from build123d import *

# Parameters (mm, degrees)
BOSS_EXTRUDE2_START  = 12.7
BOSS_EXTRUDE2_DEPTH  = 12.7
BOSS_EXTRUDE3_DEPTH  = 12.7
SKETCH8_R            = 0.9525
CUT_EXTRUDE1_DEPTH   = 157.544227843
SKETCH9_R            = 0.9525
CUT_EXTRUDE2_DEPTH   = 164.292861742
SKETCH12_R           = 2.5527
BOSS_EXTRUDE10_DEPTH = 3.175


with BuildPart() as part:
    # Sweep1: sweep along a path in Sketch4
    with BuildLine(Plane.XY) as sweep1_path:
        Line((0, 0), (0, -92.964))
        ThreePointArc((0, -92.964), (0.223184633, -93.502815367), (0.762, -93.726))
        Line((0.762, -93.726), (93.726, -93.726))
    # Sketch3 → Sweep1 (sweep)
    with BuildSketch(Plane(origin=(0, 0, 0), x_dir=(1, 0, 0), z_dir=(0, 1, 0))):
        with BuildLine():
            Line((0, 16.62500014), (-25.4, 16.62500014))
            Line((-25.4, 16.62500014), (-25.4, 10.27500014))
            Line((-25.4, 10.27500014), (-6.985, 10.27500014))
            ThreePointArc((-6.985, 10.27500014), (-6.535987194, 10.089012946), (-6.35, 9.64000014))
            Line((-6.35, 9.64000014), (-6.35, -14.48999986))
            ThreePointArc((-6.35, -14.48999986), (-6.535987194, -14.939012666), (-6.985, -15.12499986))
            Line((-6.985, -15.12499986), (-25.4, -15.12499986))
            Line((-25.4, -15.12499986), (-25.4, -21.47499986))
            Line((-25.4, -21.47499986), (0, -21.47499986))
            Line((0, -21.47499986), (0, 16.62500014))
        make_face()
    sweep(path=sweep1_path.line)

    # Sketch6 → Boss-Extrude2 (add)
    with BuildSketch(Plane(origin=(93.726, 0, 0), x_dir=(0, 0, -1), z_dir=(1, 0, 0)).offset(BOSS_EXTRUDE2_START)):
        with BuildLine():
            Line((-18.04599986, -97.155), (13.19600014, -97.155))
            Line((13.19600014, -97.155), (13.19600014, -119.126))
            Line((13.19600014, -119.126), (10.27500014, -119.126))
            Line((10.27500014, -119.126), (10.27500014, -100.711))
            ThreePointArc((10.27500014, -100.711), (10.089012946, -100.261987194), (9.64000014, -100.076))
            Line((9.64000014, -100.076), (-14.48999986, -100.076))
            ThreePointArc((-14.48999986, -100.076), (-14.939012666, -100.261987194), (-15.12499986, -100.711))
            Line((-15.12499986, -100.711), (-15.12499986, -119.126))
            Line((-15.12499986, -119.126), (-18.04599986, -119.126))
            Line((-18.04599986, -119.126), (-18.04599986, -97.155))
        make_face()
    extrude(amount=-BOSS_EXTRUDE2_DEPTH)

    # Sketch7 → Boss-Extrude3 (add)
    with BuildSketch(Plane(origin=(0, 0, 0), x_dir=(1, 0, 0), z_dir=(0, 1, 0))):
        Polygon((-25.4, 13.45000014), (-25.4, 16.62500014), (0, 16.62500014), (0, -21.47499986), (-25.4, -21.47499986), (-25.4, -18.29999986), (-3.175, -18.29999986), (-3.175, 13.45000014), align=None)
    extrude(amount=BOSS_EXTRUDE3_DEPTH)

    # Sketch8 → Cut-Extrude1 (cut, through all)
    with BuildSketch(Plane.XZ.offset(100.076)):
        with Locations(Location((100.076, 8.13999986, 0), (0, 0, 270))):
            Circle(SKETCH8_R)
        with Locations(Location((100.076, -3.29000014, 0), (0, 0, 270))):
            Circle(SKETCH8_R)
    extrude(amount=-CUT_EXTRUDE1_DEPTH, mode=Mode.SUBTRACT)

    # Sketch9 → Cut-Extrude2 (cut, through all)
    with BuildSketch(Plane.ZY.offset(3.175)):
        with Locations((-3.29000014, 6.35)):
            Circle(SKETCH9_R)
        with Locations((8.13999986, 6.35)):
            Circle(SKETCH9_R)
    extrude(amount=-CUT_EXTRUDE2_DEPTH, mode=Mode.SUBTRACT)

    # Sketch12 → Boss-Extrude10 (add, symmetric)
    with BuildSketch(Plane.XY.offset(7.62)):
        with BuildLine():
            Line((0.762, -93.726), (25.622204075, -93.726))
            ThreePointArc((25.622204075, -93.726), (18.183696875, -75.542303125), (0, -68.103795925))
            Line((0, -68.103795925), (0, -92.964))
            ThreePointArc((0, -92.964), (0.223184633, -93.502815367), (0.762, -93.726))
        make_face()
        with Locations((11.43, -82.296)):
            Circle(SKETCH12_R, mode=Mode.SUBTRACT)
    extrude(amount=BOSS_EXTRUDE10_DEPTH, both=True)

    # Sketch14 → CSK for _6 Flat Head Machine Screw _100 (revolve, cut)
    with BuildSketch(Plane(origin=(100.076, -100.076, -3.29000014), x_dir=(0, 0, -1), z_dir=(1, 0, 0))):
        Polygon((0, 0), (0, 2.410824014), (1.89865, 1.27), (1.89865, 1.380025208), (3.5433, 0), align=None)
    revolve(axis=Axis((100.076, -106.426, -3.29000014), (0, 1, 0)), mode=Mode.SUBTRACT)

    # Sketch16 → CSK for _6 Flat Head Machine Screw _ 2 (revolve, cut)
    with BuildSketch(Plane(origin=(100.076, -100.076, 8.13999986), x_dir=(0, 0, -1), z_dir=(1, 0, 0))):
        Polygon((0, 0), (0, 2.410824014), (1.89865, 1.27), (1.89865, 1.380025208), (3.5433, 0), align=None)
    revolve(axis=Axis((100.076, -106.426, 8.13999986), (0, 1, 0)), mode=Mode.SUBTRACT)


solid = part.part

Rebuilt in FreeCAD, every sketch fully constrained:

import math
import FreeCAD as App
import Part
import Sketcher
from FreeCAD import Vector
Q = App.Units.Quantity


def add_polygon(sketch, points):
    """Adds a closed chain of lines whose ends are joined by coincident constraints."""
    first, n = sketch.GeometryCount, len(points)
    for a, b in zip(points, points[1:] + points[:1]):
        sketch.addGeometry(Part.LineSegment(App.Vector(*a, 0), App.Vector(*b, 0)), False)
    for i in range(n):
        sketch.addConstraint(Sketcher.Constraint("Coincident", first + i, 2, first + (i + 1) % n, 1))

doc = App.newDocument("Part")
body = doc.addObject("PartDesign::Body", "Body")

# Sketch on XZ plane
sketch1 = body.newObject("Sketcher::SketchObject", "Sketch")
sketch1.AttachmentSupport = (doc.getObject("XZ_Plane"), [""])
sketch1.MapMode = "FlatFace"
sketch1.addGeometry([
    Part.LineSegment(Vector(0, -16.6, 0), Vector(-25.4, -16.6, 0)),  # 0
    Part.LineSegment(Vector(-25.4, -16.6, 0), Vector(-25.4, -10.3, 0)),  # 1
    Part.LineSegment(Vector(-25.4, -10.3, 0), Vector(-7, -10.3, 0)),  # 2
    Part.ArcOfCircle(Part.Circle(Vector(-7, -9.6, 0), Vector(0, 0, 1), 0.6), math.radians(-90), math.radians(0)),  # 3
    Part.LineSegment(Vector(-6.3, -9.6, 0), Vector(-6.3, 14.5, 0)),  # 4
    Part.ArcOfCircle(Part.Circle(Vector(-7, 14.5, 0), Vector(0, 0, 1), 0.6), math.radians(0), math.radians(90)),  # 5
    Part.LineSegment(Vector(-7, 15.1, 0), Vector(-25.4, 15.1, 0)),  # 6
    Part.LineSegment(Vector(-25.4, 15.1, 0), Vector(-25.4, 21.5, 0)),  # 7
    Part.LineSegment(Vector(-25.4, 21.5, 0), Vector(0, 21.5, 0)),  # 8
    Part.LineSegment(Vector(0, 21.5, 0), Vector(0, -16.6, 0)),  # 9
], False)
sketch1.addConstraint([
    Sketcher.Constraint("Coincident", 0, 2, 1, 1),
    Sketcher.Constraint("Coincident", 1, 2, 2, 1),
    Sketcher.Constraint("Tangent", 2, 2, 3, 1),
    Sketcher.Constraint("Tangent", 3, 2, 4, 1),
    Sketcher.Constraint("Tangent", 4, 2, 5, 1),
    Sketcher.Constraint("Tangent", 5, 2, 6, 1),
    Sketcher.Constraint("Coincident", 6, 2, 7, 1),
    Sketcher.Constraint("Coincident", 7, 2, 8, 1),
    Sketcher.Constraint("Coincident", 8, 2, 9, 1),
    Sketcher.Constraint("Coincident", 9, 2, 0, 1),
    Sketcher.Constraint("Horizontal", 0),
    Sketcher.Constraint("Vertical", 1),
    Sketcher.Constraint("Horizontal", 2),
    Sketcher.Constraint("Vertical", 4),
    Sketcher.Constraint("Horizontal", 6),
    Sketcher.Constraint("Vertical", 7),
    Sketcher.Constraint("Horizontal", 8),
    Sketcher.Constraint("Vertical", 9),
    Sketcher.Constraint("Equal", 3, 5),
    Sketcher.Constraint("PointOnObject", 8, 2, -2),
    Sketcher.Constraint("Vertical", 1, 2, 6, 2),
    Sketcher.Constraint("Equal", 1, 7),
    Sketcher.Constraint("DistanceX", 0, 2, 0, 1, Q("1 in")),
    Sketcher.Constraint("DistanceY", 9, 2, 9, 1, Q("1.5 in")),
    Sketcher.Constraint("Radius", 3, Q("0.025 in")),
    Sketcher.Constraint("DistanceY", 2, 2, 5, 2, Q("1 in")),
    Sketcher.Constraint("DistanceX", 2, 1, 2, 2, Q("0.725 in")),
    Sketcher.Constraint("DistanceY", 3, 3, -1, 1, 9.64),
])

# Sketch on XY plane
sketch2 = body.newObject("Sketcher::SketchObject", "Sketch001")
sketch2.AttachmentSupport = (doc.getObject("XY_Plane"), [""])
sketch2.MapMode = "FlatFace"
sketch2.addGeometry([
    Part.LineSegment(Vector(0, 0, 0), Vector(0, -93, 0)),
    Part.ArcOfCircle(Part.Circle(Vector(0.8, -93, 0), Vector(0, 0, 1), 0.8), math.radians(-180), math.radians(-90)),
    Part.LineSegment(Vector(0.8, -93.7, 0), Vector(93.7, -93.7, 0)),
], False)
sketch2.addConstraint([
    Sketcher.Constraint("Tangent", 0, 2, 1, 1),
    Sketcher.Constraint("Tangent", 1, 2, 2, 1),
    Sketcher.Constraint("Vertical", 0),
    Sketcher.Constraint("Horizontal", 2),
    Sketcher.Constraint("Coincident", 0, 1, -1, 1),
    Sketcher.Constraint("Equal", 2, 0),
    Sketcher.Constraint("Radius", 1, Q("0.03 in")),
    Sketcher.Constraint("DistanceX", 2, 1, 2, 2, Q("3.66 in")),
])
doc.recompute()

additivepipe = body.newObject("PartDesign::AdditivePipe", "AdditivePipe")
additivepipe.Profile = sketch1
additivepipe.Spine = (sketch2, ["Edge1", "Edge2", "Edge3"])

# Sketch on YZ plane
sketch3 = body.newObject("Sketcher::SketchObject", "Sketch002")
sketch3.AttachmentSupport = (doc.getObject("YZ_Plane"), [""])
sketch3.MapMode = "FlatFace"
sketch3.AttachmentOffset = App.Placement(Vector(0, 0, 4.19 * 25.4), App.Rotation())
sketch3.addGeometry([
    Part.LineSegment(Vector(-97.2, -13.2, 0), Vector(-97.2, 18, 0)),  # 0
    Part.LineSegment(Vector(-97.2, 18, 0), Vector(-119.1, 18, 0)),  # 1
    Part.LineSegment(Vector(-119.1, 18, 0), Vector(-119.1, 15.1, 0)),  # 2
    Part.LineSegment(Vector(-119.1, 15.1, 0), Vector(-100.7, 15.1, 0)),  # 3
    Part.ArcOfCircle(Part.Circle(Vector(-100.7, 14.5, 0), Vector(0, 0, 1), 0.6), math.radians(0), math.radians(90)),  # 4
    Part.LineSegment(Vector(-100.1, 14.5, 0), Vector(-100.1, -9.6, 0)),  # 5
    Part.ArcOfCircle(Part.Circle(Vector(-100.7, -9.6, 0), Vector(0, 0, 1), 0.6), math.radians(-90), math.radians(0)),  # 6
    Part.LineSegment(Vector(-100.7, -10.3, 0), Vector(-119.1, -10.3, 0)),  # 7
    Part.LineSegment(Vector(-119.1, -10.3, 0), Vector(-119.1, -13.2, 0)),  # 8
    Part.LineSegment(Vector(-119.1, -13.2, 0), Vector(-97.2, -13.2, 0)),  # 9
], False)
sketch3.addConstraint([
    Sketcher.Constraint("Coincident", 0, 2, 1, 1),
    Sketcher.Constraint("Coincident", 1, 2, 2, 1),
    Sketcher.Constraint("Coincident", 2, 2, 3, 1),
    Sketcher.Constraint("Tangent", 3, 2, 4, 2),
    Sketcher.Constraint("Tangent", 4, 1, 5, 1),
    Sketcher.Constraint("Tangent", 5, 2, 6, 2),
    Sketcher.Constraint("Tangent", 6, 1, 7, 1),
    Sketcher.Constraint("Coincident", 7, 2, 8, 1),
    Sketcher.Constraint("Coincident", 8, 2, 9, 1),
    Sketcher.Constraint("Coincident", 9, 2, 0, 1),
    Sketcher.Constraint("Vertical", 0),
    Sketcher.Constraint("Horizontal", 1),
    Sketcher.Constraint("Vertical", 2),
    Sketcher.Constraint("Horizontal", 3),
    Sketcher.Constraint("Vertical", 5),
    Sketcher.Constraint("Horizontal", 7),
    Sketcher.Constraint("Vertical", 8),
    Sketcher.Constraint("Horizontal", 9),
    Sketcher.Constraint("Equal", 4, 6),
    Sketcher.Constraint("Vertical", 2, 2, 7, 2),
    Sketcher.Constraint("Equal", 2, 8),
    Sketcher.Constraint("Radius", 4, Q("0.025 in")),
    Sketcher.Constraint("DistanceY", 6, 1, 3, 2, Q("1 in")),
    Sketcher.Constraint("DistanceY", 0, 1, 0, 2, Q("1.23 in")),
    Sketcher.Constraint("DistanceX", 1, 2, 1, 1, Q("0.865 in")),
    Sketcher.Constraint("DistanceX", 3, 1, 3, 2, Q("0.725 in")),
    Sketcher.Constraint("DistanceX", 1, 2, -1, 1, Q("4.69 in")),
    Sketcher.Constraint("DistanceY", -1, 1, 4, 3, 14.49),
])
pad1 = body.newObject("PartDesign::Pad", "Pad")
pad1.Profile = sketch3
pad1.Length = Q("0.5 in")
pad1.Reversed = True

# Sketch on XZ plane
sketch4 = body.newObject("Sketcher::SketchObject", "Sketch003")
sketch4.AttachmentSupport = (doc.getObject("XZ_Plane"), [""])
sketch4.MapMode = "FlatFace"
add_polygon(sketch4, [(-25.4, -16.6), (-25.4, -13.5), (-3.2, -13.5), (-3.2, 18.3), (-25.4, 18.3), (-25.4, 21.5), (0, 21.5), (0, -16.6)])  # lines 0-7
sketch4.addConstraint([
    Sketcher.Constraint("Vertical", 0),
    Sketcher.Constraint("Horizontal", 1),
    Sketcher.Constraint("Vertical", 2),
    Sketcher.Constraint("Horizontal", 3),
    Sketcher.Constraint("Vertical", 4),
    Sketcher.Constraint("Horizontal", 5),
    Sketcher.Constraint("Vertical", 6),
    Sketcher.Constraint("Horizontal", 7),
    Sketcher.Constraint("PointOnObject", 5, 2, -2),
    Sketcher.Constraint("Vertical", 0, 2, 3, 2),
    Sketcher.Constraint("Equal", 0, 4),
    Sketcher.Constraint("DistanceX", 5, 1, 5, 2, Q("1 in")),
    Sketcher.Constraint("DistanceY", 6, 2, 6, 1, Q("1.5 in")),
    Sketcher.Constraint("DistanceY", 2, 1, 2, 2, Q("1.25 in")),
    Sketcher.Constraint("DistanceX", 1, 1, 1, 2, Q("0.875 in")),
    Sketcher.Constraint("DistanceY", 0, 2, -1, 1, 13.45),
])
pad2 = body.newObject("PartDesign::Pad", "Pad001")
pad2.Profile = sketch4
pad2.Length = Q("0.5 in")
pad2.Reversed = True

# Sketch on XZ plane
sketch5 = body.newObject("Sketcher::SketchObject", "Sketch004")
sketch5.AttachmentSupport = (doc.getObject("XZ_Plane"), [""])
sketch5.MapMode = "FlatFace"
sketch5.AttachmentOffset = App.Placement(Vector(0, 0, 3.94 * 25.4), App.Rotation())
sketch5.addGeometry([
    Part.Circle(Vector(100.1, 8.1, 0), Vector(0, 0, 1), 1),
    Part.Circle(Vector(100.1, -3.3, 0), Vector(0, 0, 1), 1),
], False)
sketch5.addConstraint([
    Sketcher.Constraint("Equal", 0, 1),
    Sketcher.Constraint("Vertical", 0, 3, 1, 3),
    Sketcher.Constraint("Diameter", 0, Q("0.075 in")),
    Sketcher.Constraint("DistanceX", -1, 1, 0, 3, Q("3.94 in")),
    Sketcher.Constraint("DistanceY", 1, 3, 0, 3, Q("0.45 in")),
    Sketcher.Constraint("DistanceY", -1, 1, 0, 3, 8.14),
])
pocket1 = body.newObject("PartDesign::Pocket", "Pocket")
pocket1.Profile = sketch5
pocket1.Type = "ThroughAll"

# Sketch on YZ plane
sketch6 = body.newObject("Sketcher::SketchObject", "Sketch005")
sketch6.AttachmentSupport = (doc.getObject("YZ_Plane"), [""])
sketch6.MapMode = "FlatFace"
sketch6.AttachmentOffset = App.Placement(Vector(0, 0, -0.125 * 25.4), App.Rotation())
sketch6.addGeometry([
    Part.Circle(Vector(6.3, -3.3, 0), Vector(0, 0, 1), 1),
    Part.Circle(Vector(6.3, 8.1, 0), Vector(0, 0, 1), 1),
], False)
sketch6.addConstraint([
    Sketcher.Constraint("Equal", 0, 1),
    Sketcher.Constraint("Vertical", 0, 3, 1, 3),
    Sketcher.Constraint("Diameter", 0, Q("0.075 in")),
    Sketcher.Constraint("DistanceX", -1, 1, 0, 3, Q("0.25 in")),
    Sketcher.Constraint("DistanceY", 0, 3, 1, 3, Q("0.45 in")),
    Sketcher.Constraint("DistanceY", 0, 3, -1, 1, 3.29),
])
pocket2 = body.newObject("PartDesign::Pocket", "Pocket001")
pocket2.Profile = sketch6
pocket2.Type = "ThroughAll"
pocket2.Reversed = True

# Sketch on XY plane
sketch7 = body.newObject("Sketcher::SketchObject", "Sketch006")
sketch7.AttachmentSupport = (doc.getObject("XY_Plane"), [""])
sketch7.MapMode = "FlatFace"
sketch7.AttachmentOffset = App.Placement(Vector(0, 0, 0.3 * 25.4), App.Rotation())
sketch7.addGeometry([
    Part.LineSegment(Vector(0.8, -93.7, 0), Vector(25.6, -93.7, 0)),  # 0
    Part.ArcOfCircle(Part.Circle(Vector(0.2, -93.5, 0), Vector(0, 0, 1), 25.4), math.radians(-1), math.radians(91)),  # 1
    Part.LineSegment(Vector(0, -68.1, 0), Vector(0, -93, 0)),  # 2
    Part.ArcOfCircle(Part.Circle(Vector(0.8, -93, 0), Vector(0, 0, 1), 0.8), math.radians(-180), math.radians(-90)),  # 3
    Part.Circle(Vector(11.4, -82.3, 0), Vector(0, 0, 1), 2.6),  # 4
], False)
sketch7.addConstraint([
    Sketcher.Constraint("Coincident", 0, 2, 1, 1),
    Sketcher.Constraint("Coincident", 1, 2, 2, 1),
    Sketcher.Constraint("Tangent", 2, 2, 3, 1),
    Sketcher.Constraint("Tangent", 3, 2, 0, 1),
    Sketcher.Constraint("Horizontal", 0),
    Sketcher.Constraint("Vertical", 2),
    Sketcher.Constraint("PointOnObject", 1, 2, -2),
    Sketcher.Constraint("Equal", 0, 2),
    Sketcher.Constraint("Radius", 1, Q("1 in")),
    Sketcher.Constraint("Radius", 3, Q("0.03 in")),
    Sketcher.Constraint("Diameter", 4, Q("0.201 in")),
    Sketcher.Constraint("DistanceY", 3, 3, -1, 1, Q("3.66 in")),
    Sketcher.Constraint("DistanceX", -1, 1, 4, 3, Q("0.45 in")),
    Sketcher.Constraint("DistanceY", 4, 3, -1, 1, Q("3.24 in")),
    Sketcher.Constraint("DistanceX", 0, 1, 0, 2, 24.860204),
])
pad3 = body.newObject("PartDesign::Pad", "Pad002")
pad3.Profile = sketch7
pad3.Length = Q("0.25 in")
pad3.Midplane = True

# Sketch on YZ plane
sketch8 = body.newObject("Sketcher::SketchObject", "Sketch007")
sketch8.AttachmentSupport = (doc.getObject("YZ_Plane"), [""])
sketch8.MapMode = "FlatFace"
sketch8.AttachmentOffset = App.Placement(Vector(0, 0, 3.94 * 25.4), App.Rotation())
add_polygon(sketch8, [(-97.67, -3.29), (-100.08, -3.29), (-100.08, -6.83), (-98.7, -5.19), (-98.81, -5.19)])  # lines 0-4
sketch8.addGeometry(Part.LineSegment(Vector(-100.08, -3.29, 0), Vector(-97.67, -3.29, 0)), True)  # axis
sketch8.addConstraint([
    Sketcher.Constraint("Horizontal", 0),
    Sketcher.Constraint("Vertical", 1),
    Sketcher.Constraint("Horizontal", 3),
    Sketcher.Constraint("Horizontal", 5),
    Sketcher.Constraint("Coincident", 5, 1, 0, 2),
    Sketcher.Constraint("Equal", 0, 5),
    Sketcher.Constraint("Angle", 2, Q("50 deg")),
    Sketcher.Constraint("Angle", 4, Q("59 deg")),
    Sketcher.Constraint("DistanceX", 0, 2, -1, 1, Q("3.94 in")),
    Sketcher.Constraint("DistanceX", 3, 2, -1, 1, Q("3.89 in")),
    Sketcher.Constraint("DistanceY", 1, 2, 1, 1, Q("0.1395 in")),
    Sketcher.Constraint("DistanceY", 0, 2, -1, 1, 3.29),
    Sketcher.Constraint("DistanceX", 2, 2, 4, 2, 1.030799),
])
groove = body.newObject("PartDesign::Groove", "Groove")
groove.Profile = sketch8
groove.ReferenceAxis = (sketch8, ["Axis0"])
groove.Angle = 360

# Sketch on YZ plane
sketch9 = body.newObject("Sketcher::SketchObject", "Sketch008")
sketch9.AttachmentSupport = (doc.getObject("YZ_Plane"), [""])
sketch9.MapMode = "FlatFace"
sketch9.AttachmentOffset = App.Placement(Vector(0, 0, 3.94 * 25.4), App.Rotation())
add_polygon(sketch9, [(-97.67, 8.14), (-100.08, 8.14), (-100.08, 4.6), (-98.7, 6.24), (-98.81, 6.24)])  # lines 0-4
sketch9.addGeometry(Part.LineSegment(Vector(-100.08, 8.14, 0), Vector(-97.67, 8.14, 0)), True)  # axis
sketch9.addConstraint([
    Sketcher.Constraint("Horizontal", 0),
    Sketcher.Constraint("Vertical", 1),
    Sketcher.Constraint("Horizontal", 3),
    Sketcher.Constraint("Horizontal", 5),
    Sketcher.Constraint("Coincident", 5, 1, 0, 2),
    Sketcher.Constraint("Equal", 0, 5),
    Sketcher.Constraint("Angle", 2, Q("50 deg")),
    Sketcher.Constraint("Angle", 4, Q("59 deg")),
    Sketcher.Constraint("DistanceX", 0, 2, -1, 1, Q("3.94 in")),
    Sketcher.Constraint("DistanceX", 3, 2, -1, 1, Q("3.89 in")),
    Sketcher.Constraint("DistanceY", 1, 2, 1, 1, Q("0.1395 in")),
    Sketcher.Constraint("DistanceY", -1, 1, 0, 2, 8.14),
    Sketcher.Constraint("DistanceX", 2, 2, 4, 2, 1.030799),
])
groove2 = body.newObject("PartDesign::Groove", "Groove001")
groove2.Profile = sketch9
groove2.ReferenceAxis = (sketch9, ["Axis0"])
groove2.Angle = 360

doc.recompute()
